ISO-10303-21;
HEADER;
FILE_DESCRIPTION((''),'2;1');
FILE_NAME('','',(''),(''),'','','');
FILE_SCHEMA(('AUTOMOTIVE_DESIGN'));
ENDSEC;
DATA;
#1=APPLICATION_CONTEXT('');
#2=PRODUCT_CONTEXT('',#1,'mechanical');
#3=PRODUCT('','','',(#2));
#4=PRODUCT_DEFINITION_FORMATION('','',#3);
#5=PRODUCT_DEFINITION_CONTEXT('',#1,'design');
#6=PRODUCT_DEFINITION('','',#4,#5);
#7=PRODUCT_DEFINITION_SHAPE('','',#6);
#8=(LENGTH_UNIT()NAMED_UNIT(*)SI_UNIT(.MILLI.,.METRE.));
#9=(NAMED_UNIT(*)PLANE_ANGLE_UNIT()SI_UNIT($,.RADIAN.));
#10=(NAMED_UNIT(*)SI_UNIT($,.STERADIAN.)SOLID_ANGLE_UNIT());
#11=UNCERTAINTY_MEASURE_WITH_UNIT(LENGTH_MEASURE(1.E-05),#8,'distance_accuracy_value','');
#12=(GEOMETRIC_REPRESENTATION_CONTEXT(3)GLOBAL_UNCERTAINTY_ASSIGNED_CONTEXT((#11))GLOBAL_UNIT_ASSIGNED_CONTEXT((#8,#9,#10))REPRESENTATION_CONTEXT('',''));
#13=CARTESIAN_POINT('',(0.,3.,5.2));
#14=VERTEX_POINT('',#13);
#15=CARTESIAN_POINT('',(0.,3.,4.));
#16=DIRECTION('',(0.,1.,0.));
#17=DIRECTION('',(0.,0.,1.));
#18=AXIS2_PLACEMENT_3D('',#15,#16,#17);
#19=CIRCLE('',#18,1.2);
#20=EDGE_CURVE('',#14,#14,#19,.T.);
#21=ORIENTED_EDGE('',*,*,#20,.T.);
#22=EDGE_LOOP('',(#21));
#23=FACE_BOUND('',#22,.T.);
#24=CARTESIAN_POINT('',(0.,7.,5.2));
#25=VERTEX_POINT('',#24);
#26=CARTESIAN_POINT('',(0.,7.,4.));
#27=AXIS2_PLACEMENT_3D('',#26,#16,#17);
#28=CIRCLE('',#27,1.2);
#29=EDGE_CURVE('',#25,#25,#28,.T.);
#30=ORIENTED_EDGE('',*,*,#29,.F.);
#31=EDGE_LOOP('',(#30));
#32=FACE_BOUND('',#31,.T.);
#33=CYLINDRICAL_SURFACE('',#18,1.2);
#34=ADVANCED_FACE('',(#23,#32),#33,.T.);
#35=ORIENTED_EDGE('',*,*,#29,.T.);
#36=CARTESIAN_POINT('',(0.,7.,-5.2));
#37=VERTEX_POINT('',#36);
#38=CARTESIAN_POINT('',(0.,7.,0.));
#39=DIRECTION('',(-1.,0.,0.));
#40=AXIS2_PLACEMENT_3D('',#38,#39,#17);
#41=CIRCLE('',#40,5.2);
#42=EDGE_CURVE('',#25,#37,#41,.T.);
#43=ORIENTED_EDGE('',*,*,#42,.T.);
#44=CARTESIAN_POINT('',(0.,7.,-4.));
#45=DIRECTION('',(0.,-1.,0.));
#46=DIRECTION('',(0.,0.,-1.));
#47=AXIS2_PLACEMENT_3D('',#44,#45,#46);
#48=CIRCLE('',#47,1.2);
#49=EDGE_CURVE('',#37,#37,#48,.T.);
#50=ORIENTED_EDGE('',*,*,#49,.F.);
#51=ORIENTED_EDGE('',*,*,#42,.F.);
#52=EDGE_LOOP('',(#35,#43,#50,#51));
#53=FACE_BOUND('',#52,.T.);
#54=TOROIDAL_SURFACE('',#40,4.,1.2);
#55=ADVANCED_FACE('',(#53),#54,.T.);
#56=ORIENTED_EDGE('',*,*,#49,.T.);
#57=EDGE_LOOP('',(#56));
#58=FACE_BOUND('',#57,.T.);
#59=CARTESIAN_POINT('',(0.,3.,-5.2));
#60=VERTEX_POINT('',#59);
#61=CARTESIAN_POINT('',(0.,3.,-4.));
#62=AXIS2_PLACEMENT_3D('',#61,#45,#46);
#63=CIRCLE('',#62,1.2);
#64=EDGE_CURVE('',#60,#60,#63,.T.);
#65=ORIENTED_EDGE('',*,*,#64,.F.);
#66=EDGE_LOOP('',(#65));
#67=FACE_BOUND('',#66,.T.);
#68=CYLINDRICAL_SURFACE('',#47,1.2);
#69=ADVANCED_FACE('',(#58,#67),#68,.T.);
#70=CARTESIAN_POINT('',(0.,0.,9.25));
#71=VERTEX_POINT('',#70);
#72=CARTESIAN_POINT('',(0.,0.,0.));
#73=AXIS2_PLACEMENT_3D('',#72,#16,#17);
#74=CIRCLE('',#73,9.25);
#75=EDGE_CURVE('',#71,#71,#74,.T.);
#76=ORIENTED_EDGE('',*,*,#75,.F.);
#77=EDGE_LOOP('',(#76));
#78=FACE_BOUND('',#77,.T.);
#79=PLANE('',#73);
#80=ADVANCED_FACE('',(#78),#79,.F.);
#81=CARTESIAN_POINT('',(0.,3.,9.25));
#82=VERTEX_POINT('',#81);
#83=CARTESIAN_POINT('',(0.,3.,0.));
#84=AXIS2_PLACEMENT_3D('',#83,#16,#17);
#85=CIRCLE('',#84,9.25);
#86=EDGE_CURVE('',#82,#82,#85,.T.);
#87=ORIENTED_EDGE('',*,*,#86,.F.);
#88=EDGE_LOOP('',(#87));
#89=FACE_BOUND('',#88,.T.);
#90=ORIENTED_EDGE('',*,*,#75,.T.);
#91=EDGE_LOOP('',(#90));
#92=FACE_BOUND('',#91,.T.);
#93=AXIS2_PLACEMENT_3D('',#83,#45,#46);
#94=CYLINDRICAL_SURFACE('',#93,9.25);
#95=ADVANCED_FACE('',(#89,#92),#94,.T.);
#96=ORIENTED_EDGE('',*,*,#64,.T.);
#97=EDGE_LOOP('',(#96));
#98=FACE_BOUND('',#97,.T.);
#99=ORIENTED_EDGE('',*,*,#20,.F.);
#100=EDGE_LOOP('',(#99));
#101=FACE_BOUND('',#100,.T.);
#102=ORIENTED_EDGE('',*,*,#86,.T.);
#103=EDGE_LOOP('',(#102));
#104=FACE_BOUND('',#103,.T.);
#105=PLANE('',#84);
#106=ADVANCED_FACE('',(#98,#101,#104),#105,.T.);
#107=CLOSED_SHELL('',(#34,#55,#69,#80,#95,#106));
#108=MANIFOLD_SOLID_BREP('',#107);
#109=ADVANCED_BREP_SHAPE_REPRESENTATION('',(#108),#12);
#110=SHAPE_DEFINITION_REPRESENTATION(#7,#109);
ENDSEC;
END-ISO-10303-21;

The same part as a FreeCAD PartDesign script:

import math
import FreeCAD as App
import Part
import Sketcher
from FreeCAD import Vector

doc = App.newDocument("Part")
body = doc.addObject("PartDesign::Body", "Body")

# Sketch on XZ plane
sketch1 = body.newObject("Sketcher::SketchObject", "Sketch")
sketch1.AttachmentSupport = (doc.getObject("XZ_Plane"), [""])
sketch1.MapMode = "FlatFace"
sketch1.addGeometry(Part.Circle(Vector(0, 0, 0), Vector(0, 0, 1), 9), False)
sketch1.addConstraint(Sketcher.Constraint("Coincident", 0, 3, -1, 1))
sketch1.addConstraint(Sketcher.Constraint("Diameter", 0, 18.5))
pad1 = body.newObject("PartDesign::Pad", "Pad")
pad1.Profile = sketch1
pad1.Length = 3
pad1.Reversed = True

# Sketch on XZ plane
sketch2 = body.newObject("Sketcher::SketchObject", "Sketch001")
sketch2.AttachmentSupport = (doc.getObject("XZ_Plane"), [""])
sketch2.MapMode = "FlatFace"
sketch2.AttachmentOffset = App.Placement(Vector(0, 0, -3), App.Rotation())
sketch2.addGeometry(Part.Circle(Vector(0, 4, 0), Vector(0, 0, 1), 1.2), False)
sketch2.addConstraint(Sketcher.Constraint("PointOnObject", 0, 3, -2))
sketch2.addConstraint(Sketcher.Constraint("Diameter", 0, 2.4))
sketch2.addConstraint(Sketcher.Constraint("DistanceY", -1, 1, 0, 3, 4.0))

# Sketch on YZ plane
sketch3 = body.newObject("Sketcher::SketchObject", "Sketch002")
sketch3.AttachmentSupport = (doc.getObject("YZ_Plane"), [""])
sketch3.MapMode = "FlatFace"
sketch3.addGeometry(Part.LineSegment(Vector(3, 4, 0), Vector(7, 4, 0)), False)
sketch3.addGeometry(Part.ArcOfCircle(Part.Circle(Vector(7, 0, 0), Vector(0, 0, 1), 4), math.radians(-90), math.radians(90)), False)
sketch3.addGeometry(Part.LineSegment(Vector(7, -4, 0), Vector(3, -4, 0)), False)
sketch3.addConstraint(Sketcher.Constraint("Tangent", 0, 2, 1, 2))
sketch3.addConstraint(Sketcher.Constraint("Tangent", 1, 1, 2, 1))
sketch3.addConstraint(Sketcher.Constraint("Horizontal", 0))
sketch3.addConstraint(Sketcher.Constraint("Horizontal", 2))
sketch3.addConstraint(Sketcher.Constraint("Symmetric", 0, 1, 2, 2, -1))
sketch3.addConstraint(Sketcher.Constraint("Radius", 1, 4.0))
sketch3.addConstraint(Sketcher.Constraint("DistanceX", 0, 1, 0, 2, 4.0))
sketch3.addConstraint(Sketcher.Constraint("DistanceX", -1, 1, 1, 3, 7.0))
doc.recompute()

additivepipe = body.newObject("PartDesign::AdditivePipe", "AdditivePipe")
additivepipe.Profile = sketch2
additivepipe.Spine = (sketch3, ["Edge1", "Edge2", "Edge3"])

doc.recompute()
